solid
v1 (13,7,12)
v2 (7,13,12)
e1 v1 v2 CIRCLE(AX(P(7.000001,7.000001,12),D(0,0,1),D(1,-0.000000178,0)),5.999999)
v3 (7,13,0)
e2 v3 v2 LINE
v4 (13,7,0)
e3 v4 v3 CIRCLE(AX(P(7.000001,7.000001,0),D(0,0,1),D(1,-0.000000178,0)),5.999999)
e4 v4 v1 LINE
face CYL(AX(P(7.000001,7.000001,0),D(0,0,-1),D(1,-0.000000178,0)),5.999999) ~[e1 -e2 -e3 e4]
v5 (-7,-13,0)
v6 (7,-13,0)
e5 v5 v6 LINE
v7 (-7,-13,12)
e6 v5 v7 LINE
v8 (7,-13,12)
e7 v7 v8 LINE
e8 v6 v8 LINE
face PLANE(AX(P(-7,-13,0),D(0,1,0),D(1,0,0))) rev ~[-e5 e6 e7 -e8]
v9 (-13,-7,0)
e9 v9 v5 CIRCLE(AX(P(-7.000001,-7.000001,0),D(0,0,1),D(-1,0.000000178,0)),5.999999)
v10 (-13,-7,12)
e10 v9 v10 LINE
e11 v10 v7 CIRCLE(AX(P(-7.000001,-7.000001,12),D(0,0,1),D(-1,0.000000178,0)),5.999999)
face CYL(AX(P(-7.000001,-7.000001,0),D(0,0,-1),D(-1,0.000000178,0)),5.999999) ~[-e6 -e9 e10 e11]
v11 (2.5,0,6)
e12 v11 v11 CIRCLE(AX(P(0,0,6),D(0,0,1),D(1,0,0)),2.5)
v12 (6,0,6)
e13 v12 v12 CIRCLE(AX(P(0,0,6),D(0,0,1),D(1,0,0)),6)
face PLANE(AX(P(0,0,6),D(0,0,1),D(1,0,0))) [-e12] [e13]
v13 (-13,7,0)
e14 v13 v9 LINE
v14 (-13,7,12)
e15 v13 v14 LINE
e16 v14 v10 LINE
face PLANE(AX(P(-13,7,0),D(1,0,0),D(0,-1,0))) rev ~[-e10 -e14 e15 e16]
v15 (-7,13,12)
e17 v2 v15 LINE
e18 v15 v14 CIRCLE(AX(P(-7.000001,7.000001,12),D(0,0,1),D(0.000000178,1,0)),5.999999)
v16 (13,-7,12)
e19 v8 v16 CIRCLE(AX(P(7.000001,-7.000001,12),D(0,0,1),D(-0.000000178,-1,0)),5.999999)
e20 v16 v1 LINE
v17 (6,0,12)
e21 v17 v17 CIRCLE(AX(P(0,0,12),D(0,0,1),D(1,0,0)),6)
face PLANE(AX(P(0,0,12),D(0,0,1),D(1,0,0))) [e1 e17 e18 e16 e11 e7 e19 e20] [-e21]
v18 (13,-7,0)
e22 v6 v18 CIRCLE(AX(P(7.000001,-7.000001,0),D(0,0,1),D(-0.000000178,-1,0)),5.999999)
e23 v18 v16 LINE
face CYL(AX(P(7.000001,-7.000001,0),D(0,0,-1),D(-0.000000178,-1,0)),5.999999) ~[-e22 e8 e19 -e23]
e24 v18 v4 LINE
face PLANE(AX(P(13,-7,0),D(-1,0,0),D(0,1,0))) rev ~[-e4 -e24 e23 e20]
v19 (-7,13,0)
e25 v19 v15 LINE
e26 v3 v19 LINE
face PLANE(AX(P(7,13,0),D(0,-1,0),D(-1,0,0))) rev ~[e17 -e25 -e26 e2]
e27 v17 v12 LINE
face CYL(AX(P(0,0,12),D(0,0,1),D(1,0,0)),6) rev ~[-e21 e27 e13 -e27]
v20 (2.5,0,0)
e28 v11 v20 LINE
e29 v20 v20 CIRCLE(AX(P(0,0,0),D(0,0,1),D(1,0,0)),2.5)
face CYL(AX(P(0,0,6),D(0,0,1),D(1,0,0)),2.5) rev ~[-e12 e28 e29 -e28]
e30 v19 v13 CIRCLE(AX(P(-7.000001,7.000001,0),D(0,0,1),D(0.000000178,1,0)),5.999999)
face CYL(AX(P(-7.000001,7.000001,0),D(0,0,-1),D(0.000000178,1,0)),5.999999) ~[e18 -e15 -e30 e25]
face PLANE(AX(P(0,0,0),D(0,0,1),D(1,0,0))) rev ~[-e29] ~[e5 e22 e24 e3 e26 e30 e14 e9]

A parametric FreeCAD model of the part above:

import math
import FreeCAD as App
import Part
import Sketcher
from FreeCAD import Vector

doc = App.newDocument("Part")
body = doc.addObject("PartDesign::Body", "Body")

sketch1 = body.newObject("Sketcher::SketchObject", "Sketch")
sketch1.AttachmentSupport = (doc.getObject("XY_Plane"), [""])
sketch1.MapMode = "FlatFace"
sketch1.addGeometry([
    Part.LineSegment(Vector(-7, -13, 0), Vector(7, -13, 0)),
    Part.ArcOfCircle(Part.Circle(Vector(7, -7, 0), Vector(0, 0, 1), 6), math.radians(-90), math.radians(0)),
    Part.LineSegment(Vector(13, -7, 0), Vector(13, 7, 0)),
    Part.ArcOfCircle(Part.Circle(Vector(7, 7, 0), Vector(0, 0, 1), 6), math.radians(0), math.radians(90)),
    Part.LineSegment(Vector(7, 13, 0), Vector(-7, 13, 0)),
    Part.ArcOfCircle(Part.Circle(Vector(-7, 7, 0), Vector(0, 0, 1), 6), math.radians(90), math.radians(180)),
    Part.LineSegment(Vector(-13, 7, 0), Vector(-13, -7, 0)),
    Part.ArcOfCircle(Part.Circle(Vector(-7, -7, 0), Vector(0, 0, 1), 6), math.radians(180), math.radians(270)),
], False)
sketch1.addConstraint([
    Sketcher.Constraint("Tangent", 0, 2, 1, 1),
    Sketcher.Constraint("Tangent", 1, 2, 2, 1),
    Sketcher.Constraint("Tangent", 2, 2, 3, 1),
    Sketcher.Constraint("Tangent", 3, 2, 4, 1),
    Sketcher.Constraint("Tangent", 4, 2, 5, 1),
    Sketcher.Constraint("Tangent", 5, 2, 6, 1),
    Sketcher.Constraint("Tangent", 6, 2, 7, 1),
    Sketcher.Constraint("Tangent", 7, 2, 0, 1),
    Sketcher.Constraint("Horizontal", 0),
    Sketcher.Constraint("Vertical", 2),
    Sketcher.Constraint("Horizontal", 4),
    Sketcher.Constraint("Vertical", 6),
    Sketcher.Constraint("Equal", 1, 3),
    Sketcher.Constraint("Equal", 3, 5),
    Sketcher.Constraint("Equal", 5, 7),
    Sketcher.Constraint("Symmetric", 1, 3, 5, 3, -1, 1),
    Sketcher.Constraint("Equal", 4, 2),
    Sketcher.Constraint("Radius", 1, 5.999999),
    Sketcher.Constraint("DistanceX", 0, 1, 0, 2, 14.0),
])
pad1 = body.newObject("PartDesign::Pad", "Pad")
pad1.Profile = sketch1
pad1.Length = 12

sketch2 = body.newObject("Sketcher::SketchObject", "Sketch001")
sketch2.AttachmentSupport = (doc.getObject("XY_Plane"), [""])
sketch2.MapMode = "FlatFace"
sketch2.AttachmentOffset = App.Placement(Vector(0, 0, 12), App.Rotation())
sketch2.addGeometry(Part.Circle(Vector(0, 0, 0), Vector(0, 0, 1), 6), False)
sketch2.addConstraint([
    Sketcher.Constraint("Coincident", 0, 3, -1, 1),
    Sketcher.Constraint("Diameter", 0, 12.0),
])
pocket1 = body.newObject("PartDesign::Pocket", "Pocket")
pocket1.Profile = sketch2
pocket1.Length = 6

sketch3 = body.newObject("Sketcher::SketchObject", "Sketch002")
sketch3.AttachmentSupport = (doc.getObject("XY_Plane"), [""])
sketch3.MapMode = "FlatFace"
sketch3.AttachmentOffset = App.Placement(Vector(0, 0, 6), App.Rotation())
sketch3.addGeometry(Part.Circle(Vector(0, 0, 0), Vector(0, 0, 1), 2.5), False)
sketch3.addConstraint([
    Sketcher.Constraint("Coincident", 0, 3, -1, 1),
    Sketcher.Constraint("Diameter", 0, 5.0),
])
pocket2 = body.newObject("PartDesign::Pocket", "Pocket001")
pocket2.Profile = sketch3
pocket2.Length = 31.5

doc.recompute()
